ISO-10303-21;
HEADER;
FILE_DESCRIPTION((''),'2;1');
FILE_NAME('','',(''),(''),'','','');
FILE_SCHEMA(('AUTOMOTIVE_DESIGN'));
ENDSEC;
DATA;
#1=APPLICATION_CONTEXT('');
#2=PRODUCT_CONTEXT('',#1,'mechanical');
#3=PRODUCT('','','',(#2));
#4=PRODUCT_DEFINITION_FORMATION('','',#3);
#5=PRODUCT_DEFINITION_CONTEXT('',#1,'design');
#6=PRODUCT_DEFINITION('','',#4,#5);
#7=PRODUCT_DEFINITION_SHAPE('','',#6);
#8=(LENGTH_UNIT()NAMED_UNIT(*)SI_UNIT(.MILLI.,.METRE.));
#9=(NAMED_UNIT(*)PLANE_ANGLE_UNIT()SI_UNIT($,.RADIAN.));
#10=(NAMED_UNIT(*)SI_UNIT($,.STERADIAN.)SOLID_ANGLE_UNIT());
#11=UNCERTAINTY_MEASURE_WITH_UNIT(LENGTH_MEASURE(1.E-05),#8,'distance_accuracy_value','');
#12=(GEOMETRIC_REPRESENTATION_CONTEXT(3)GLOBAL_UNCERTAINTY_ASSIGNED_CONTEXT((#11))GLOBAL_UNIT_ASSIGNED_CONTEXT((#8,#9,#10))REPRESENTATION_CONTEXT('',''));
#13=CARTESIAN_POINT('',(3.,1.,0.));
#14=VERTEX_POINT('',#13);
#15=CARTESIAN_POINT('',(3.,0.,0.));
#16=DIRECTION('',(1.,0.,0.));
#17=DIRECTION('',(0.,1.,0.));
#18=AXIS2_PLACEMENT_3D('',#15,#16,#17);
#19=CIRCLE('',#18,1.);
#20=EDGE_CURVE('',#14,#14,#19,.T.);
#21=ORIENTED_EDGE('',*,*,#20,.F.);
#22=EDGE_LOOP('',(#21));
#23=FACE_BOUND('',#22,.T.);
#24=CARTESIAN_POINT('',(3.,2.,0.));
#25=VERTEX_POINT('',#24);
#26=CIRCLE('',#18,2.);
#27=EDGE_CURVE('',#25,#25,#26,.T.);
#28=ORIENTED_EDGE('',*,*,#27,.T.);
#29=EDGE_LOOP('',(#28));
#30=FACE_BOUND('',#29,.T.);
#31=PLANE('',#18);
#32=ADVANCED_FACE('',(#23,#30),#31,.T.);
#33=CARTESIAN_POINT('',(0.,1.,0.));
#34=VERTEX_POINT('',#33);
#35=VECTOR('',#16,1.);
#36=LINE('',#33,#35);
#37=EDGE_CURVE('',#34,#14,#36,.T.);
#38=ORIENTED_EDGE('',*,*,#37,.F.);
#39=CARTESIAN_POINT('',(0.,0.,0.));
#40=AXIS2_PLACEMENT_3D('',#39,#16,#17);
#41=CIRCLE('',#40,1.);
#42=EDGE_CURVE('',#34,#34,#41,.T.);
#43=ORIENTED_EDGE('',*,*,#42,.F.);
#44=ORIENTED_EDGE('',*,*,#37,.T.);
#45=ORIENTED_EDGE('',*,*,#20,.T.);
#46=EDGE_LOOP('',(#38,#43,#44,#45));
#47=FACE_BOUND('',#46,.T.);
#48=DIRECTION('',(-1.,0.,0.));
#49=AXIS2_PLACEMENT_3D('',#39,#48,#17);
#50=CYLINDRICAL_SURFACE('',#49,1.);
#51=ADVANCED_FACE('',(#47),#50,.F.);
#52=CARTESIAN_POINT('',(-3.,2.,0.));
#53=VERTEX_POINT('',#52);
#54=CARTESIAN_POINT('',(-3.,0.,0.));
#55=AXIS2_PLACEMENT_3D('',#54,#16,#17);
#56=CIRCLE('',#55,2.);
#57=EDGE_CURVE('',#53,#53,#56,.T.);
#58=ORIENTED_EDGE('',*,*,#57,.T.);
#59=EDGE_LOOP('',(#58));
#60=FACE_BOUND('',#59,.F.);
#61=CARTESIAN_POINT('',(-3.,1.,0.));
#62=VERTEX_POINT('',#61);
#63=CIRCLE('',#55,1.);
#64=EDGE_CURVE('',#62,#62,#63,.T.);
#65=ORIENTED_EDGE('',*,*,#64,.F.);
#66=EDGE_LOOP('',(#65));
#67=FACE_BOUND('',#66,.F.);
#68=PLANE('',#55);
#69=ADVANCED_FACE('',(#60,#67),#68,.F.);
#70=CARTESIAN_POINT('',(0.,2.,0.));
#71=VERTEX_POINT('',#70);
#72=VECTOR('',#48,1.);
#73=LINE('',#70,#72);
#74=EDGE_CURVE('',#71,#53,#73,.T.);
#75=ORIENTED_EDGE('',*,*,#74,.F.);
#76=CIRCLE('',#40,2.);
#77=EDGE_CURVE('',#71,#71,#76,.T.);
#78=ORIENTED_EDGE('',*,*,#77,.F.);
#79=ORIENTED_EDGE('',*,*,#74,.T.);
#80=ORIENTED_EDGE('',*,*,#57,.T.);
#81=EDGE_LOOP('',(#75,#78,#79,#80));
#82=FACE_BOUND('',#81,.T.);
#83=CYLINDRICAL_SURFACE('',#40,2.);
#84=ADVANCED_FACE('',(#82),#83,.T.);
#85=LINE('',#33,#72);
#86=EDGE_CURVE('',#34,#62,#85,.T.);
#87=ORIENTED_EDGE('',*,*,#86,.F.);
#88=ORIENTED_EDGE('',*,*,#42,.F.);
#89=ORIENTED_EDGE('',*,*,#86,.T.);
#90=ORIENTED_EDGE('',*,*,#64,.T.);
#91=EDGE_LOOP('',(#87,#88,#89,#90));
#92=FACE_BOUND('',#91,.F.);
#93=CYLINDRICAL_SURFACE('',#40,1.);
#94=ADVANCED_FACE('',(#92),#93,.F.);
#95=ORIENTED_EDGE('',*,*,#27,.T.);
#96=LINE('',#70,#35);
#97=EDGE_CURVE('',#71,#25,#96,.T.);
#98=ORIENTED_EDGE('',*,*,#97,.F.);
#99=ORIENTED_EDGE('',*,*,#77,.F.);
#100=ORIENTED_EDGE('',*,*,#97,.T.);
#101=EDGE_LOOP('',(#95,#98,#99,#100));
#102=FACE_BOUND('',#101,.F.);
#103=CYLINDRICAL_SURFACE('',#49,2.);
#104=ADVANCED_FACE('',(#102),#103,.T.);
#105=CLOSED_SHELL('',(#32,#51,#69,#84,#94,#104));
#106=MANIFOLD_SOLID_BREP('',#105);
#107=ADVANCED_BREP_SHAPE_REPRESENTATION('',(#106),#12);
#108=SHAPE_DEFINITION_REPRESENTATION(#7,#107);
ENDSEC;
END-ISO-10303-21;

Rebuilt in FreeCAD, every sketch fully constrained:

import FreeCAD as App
import Part
import Sketcher
from FreeCAD import Vector
Q = App.Units.Quantity

doc = App.newDocument("Part")
body = doc.addObject("PartDesign::Body", "Body")

# Sketch on YZ plane
sketch1 = doc.addObject("Sketcher::SketchObject", "Sketch")
body.addObject(sketch1)
sketch1.AttachmentSupport = (doc.YZ_Plane, [""])
sketch1.MapMode = "FlatFace"
sketch1.addGeometry(Part.Circle(Vector(0, 0, 0), Vector(0, 0, 1), 2), False)
sketch1.addGeometry(Part.Circle(Vector(0, 0, 0), Vector(0, 0, 1), 1), False)
sketch1.addConstraint(Sketcher.Constraint("Coincident", 0, 3, -1, 1))
sketch1.addConstraint(Sketcher.Constraint("Coincident", 1, 3, -1, 1))
sketch1.addConstraint(Sketcher.Constraint("Diameter", 0, Q("4 mm")))
sketch1.addConstraint(Sketcher.Constraint("Diameter", 1, Q("2 mm")))
pad1 = doc.addObject("PartDesign::Pad", "Pad")
body.addObject(pad1)
pad1.Profile = sketch1
pad1.Length = 6
pad1.Midplane = True

doc.recompute()
